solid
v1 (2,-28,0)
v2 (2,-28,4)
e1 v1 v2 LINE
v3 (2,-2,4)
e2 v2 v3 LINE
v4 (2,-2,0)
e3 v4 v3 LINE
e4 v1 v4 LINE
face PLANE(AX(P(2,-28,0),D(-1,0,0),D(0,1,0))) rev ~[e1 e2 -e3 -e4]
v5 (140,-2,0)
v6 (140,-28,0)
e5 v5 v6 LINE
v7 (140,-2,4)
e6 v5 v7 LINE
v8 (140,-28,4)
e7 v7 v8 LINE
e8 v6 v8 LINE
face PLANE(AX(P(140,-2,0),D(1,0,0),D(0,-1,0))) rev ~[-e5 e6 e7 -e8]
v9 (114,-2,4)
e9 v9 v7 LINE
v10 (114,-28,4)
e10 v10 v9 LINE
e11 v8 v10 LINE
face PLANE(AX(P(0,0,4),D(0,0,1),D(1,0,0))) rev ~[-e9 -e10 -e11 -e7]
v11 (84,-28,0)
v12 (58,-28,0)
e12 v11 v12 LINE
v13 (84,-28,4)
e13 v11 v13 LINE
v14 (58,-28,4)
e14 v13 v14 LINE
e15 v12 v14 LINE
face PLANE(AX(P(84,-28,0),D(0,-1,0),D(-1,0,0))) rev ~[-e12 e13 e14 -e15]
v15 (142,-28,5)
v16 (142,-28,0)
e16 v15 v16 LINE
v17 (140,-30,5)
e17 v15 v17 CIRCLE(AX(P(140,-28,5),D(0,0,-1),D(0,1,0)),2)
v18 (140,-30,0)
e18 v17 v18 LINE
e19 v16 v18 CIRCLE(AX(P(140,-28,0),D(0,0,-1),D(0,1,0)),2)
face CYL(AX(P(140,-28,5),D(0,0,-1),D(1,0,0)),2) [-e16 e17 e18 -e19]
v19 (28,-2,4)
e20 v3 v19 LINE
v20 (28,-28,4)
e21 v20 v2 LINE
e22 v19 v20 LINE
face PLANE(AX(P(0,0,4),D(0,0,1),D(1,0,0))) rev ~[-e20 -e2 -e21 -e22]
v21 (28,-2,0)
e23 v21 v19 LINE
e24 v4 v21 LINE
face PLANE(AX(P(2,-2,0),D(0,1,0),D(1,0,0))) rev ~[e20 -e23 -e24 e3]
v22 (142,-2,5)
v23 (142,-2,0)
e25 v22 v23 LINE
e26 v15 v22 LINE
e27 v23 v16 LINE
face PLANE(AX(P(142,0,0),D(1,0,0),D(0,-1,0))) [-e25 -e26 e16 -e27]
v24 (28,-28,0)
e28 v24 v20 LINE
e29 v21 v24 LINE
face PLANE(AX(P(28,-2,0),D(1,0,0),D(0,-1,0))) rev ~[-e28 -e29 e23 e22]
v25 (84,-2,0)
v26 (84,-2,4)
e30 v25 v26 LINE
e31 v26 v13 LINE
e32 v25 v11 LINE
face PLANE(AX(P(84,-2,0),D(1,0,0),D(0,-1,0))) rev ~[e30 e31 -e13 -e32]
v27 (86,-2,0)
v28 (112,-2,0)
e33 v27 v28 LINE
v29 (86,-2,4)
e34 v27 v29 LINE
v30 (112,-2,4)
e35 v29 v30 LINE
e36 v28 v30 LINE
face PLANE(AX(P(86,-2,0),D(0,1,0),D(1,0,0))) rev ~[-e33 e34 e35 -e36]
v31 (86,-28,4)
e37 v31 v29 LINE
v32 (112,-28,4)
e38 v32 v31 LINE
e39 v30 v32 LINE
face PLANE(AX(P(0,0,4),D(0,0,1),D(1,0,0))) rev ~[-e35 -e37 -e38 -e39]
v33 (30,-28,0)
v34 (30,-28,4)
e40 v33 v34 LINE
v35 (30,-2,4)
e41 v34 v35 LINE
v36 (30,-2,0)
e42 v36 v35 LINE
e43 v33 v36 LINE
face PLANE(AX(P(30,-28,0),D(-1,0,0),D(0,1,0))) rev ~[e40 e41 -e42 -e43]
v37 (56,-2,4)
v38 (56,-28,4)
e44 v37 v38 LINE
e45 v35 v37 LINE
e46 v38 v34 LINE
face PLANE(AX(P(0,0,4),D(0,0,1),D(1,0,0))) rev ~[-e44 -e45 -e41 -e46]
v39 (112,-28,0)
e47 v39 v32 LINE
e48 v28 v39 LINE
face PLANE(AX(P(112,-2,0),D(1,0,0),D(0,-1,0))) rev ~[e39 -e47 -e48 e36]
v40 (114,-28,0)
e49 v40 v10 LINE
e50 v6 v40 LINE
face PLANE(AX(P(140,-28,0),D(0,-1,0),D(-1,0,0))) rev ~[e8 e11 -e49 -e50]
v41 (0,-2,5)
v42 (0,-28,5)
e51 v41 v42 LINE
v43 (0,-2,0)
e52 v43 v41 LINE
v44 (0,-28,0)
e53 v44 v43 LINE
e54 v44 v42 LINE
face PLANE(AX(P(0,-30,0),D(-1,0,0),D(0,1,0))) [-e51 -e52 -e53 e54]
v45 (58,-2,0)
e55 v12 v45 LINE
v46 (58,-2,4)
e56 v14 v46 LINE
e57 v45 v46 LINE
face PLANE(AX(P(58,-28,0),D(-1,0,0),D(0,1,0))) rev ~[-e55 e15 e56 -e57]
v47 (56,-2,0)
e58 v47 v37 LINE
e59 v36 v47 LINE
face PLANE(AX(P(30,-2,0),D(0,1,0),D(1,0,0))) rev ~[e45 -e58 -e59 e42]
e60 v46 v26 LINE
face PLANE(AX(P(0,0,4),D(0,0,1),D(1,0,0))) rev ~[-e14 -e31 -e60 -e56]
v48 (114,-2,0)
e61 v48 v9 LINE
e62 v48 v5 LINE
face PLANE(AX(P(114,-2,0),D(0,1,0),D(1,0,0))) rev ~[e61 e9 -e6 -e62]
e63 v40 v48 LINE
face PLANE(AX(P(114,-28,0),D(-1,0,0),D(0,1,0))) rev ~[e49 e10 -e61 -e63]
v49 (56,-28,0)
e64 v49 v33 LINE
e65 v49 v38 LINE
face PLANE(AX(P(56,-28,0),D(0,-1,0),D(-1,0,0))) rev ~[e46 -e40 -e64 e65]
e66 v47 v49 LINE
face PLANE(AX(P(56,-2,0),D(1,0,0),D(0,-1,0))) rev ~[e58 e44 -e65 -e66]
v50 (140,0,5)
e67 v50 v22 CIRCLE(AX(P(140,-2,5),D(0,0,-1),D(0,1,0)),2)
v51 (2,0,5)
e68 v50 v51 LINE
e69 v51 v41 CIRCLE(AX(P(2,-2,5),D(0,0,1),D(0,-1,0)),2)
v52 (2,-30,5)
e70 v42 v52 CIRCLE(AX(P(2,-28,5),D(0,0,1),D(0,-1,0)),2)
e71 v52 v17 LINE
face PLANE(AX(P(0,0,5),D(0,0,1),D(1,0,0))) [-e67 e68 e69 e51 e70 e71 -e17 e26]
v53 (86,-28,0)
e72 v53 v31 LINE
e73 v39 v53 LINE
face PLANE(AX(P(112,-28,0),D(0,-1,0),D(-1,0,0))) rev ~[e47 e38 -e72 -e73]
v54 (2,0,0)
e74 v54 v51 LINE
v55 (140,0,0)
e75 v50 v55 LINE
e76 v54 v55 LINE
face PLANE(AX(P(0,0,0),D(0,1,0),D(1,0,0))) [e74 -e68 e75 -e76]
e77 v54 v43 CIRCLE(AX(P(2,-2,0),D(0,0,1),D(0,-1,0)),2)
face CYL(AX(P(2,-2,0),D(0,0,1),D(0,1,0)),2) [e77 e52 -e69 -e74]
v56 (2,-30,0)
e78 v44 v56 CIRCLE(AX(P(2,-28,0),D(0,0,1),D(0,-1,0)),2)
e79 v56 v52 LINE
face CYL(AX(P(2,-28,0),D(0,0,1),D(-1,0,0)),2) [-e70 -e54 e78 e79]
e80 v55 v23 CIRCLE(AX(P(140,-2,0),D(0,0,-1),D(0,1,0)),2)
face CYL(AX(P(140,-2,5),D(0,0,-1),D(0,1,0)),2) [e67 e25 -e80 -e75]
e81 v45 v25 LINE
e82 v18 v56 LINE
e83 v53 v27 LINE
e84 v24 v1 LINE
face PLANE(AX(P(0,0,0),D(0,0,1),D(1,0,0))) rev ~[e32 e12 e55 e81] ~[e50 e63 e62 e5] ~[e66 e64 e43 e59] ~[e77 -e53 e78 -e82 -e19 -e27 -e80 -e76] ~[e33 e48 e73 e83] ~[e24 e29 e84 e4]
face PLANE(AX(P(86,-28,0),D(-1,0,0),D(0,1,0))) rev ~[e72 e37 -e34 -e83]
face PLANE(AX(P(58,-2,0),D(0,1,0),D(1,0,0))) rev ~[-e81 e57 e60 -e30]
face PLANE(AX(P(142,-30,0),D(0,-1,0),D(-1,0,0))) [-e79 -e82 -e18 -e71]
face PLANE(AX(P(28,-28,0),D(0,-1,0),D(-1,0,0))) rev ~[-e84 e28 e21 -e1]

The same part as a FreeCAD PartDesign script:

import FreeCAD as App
import Part
import Sketcher


def edges_at(feature, points):
    """Names of the edges that pass closest to the given points."""
    edges = feature.Shape.Edges
    near = lambda p: min(range(len(edges)), key=lambda i: edges[i].distToShape(Part.Vertex(*p))[0])
    return sorted({f"Edge{near(p) + 1}" for p in points})

doc = App.newDocument("Part")
body = doc.addObject("PartDesign::Body", "Body")

# Sketch on XY plane
sketch1 = body.newObject("Sketcher::SketchObject", "Sketch")
sketch1.AttachmentSupport = (doc.getObject("XY_Plane"), [""])
sketch1.MapMode = "FlatFace"
sketch1.addGeometry(Part.LineSegment(App.Vector(142, 0, 0), App.Vector(0, 0, 0)), False)
sketch1.addGeometry(Part.LineSegment(App.Vector(0, 0, 0), App.Vector(0, -30, 0)), False)
sketch1.addGeometry(Part.LineSegment(App.Vector(0, -30, 0), App.Vector(142, -30, 0)), False)
sketch1.addGeometry(Part.LineSegment(App.Vector(142, -30, 0), App.Vector(142, 0, 0)), False)
sketch1.addGeometry(Part.LineSegment(App.Vector(2, -28, 0), App.Vector(2, -2, 0)), False)
sketch1.addGeometry(Part.LineSegment(App.Vector(2, -2, 0), App.Vector(28, -2, 0)), False)
sketch1.addGeometry(Part.LineSegment(App.Vector(28, -2, 0), App.Vector(28, -28, 0)), False)
sketch1.addGeometry(Part.LineSegment(App.Vector(28, -28, 0), App.Vector(2, -28, 0)), False)
sketch1.addGeometry(Part.LineSegment(App.Vector(30, -2, 0), App.Vector(56, -2, 0)), False)
sketch1.addGeometry(Part.LineSegment(App.Vector(56, -2, 0), App.Vector(56, -28, 0)), False)
sketch1.addGeometry(Part.LineSegment(App.Vector(56, -28, 0), App.Vector(30, -28, 0)), False)
sketch1.addGeometry(Part.LineSegment(App.Vector(30, -28, 0), App.Vector(30, -2, 0)), False)
sketch1.addGeometry(Part.LineSegment(App.Vector(58, -2, 0), App.Vector(84, -2, 0)), False)
sketch1.addGeometry(Part.LineSegment(App.Vector(84, -2, 0), App.Vector(84, -28, 0)), False)
sketch1.addGeometry(Part.LineSegment(App.Vector(84, -28, 0), App.Vector(58, -28, 0)), False)
sketch1.addGeometry(Part.LineSegment(App.Vector(58, -28, 0), App.Vector(58, -2, 0)), False)
sketch1.addGeometry(Part.LineSegment(App.Vector(86, -2, 0), App.Vector(112, -2, 0)), False)
sketch1.addGeometry(Part.LineSegment(App.Vector(112, -2, 0), App.Vector(112, -28, 0)), False)
sketch1.addGeometry(Part.LineSegment(App.Vector(112, -28, 0), App.Vector(86, -28, 0)), False)
sketch1.addGeometry(Part.LineSegment(App.Vector(86, -28, 0), App.Vector(86, -2, 0)), False)
sketch1.addGeometry(Part.LineSegment(App.Vector(114, -2, 0), App.Vector(140, -2, 0)), False)
sketch1.addGeometry(Part.LineSegment(App.Vector(140, -2, 0), App.Vector(140, -28, 0)), False)
sketch1.addGeometry(Part.LineSegment(App.Vector(140, -28, 0), App.Vector(114, -28, 0)), False)
sketch1.addGeometry(Part.LineSegment(App.Vector(114, -28, 0), App.Vector(114, -2, 0)), False)
sketch1.addConstraint(Sketcher.Constraint("Coincident", 0, 2, 1, 1))
sketch1.addConstraint(Sketcher.Constraint("Coincident", 1, 2, 2, 1))
sketch1.addConstraint(Sketcher.Constraint("Coincident", 2, 2, 3, 1))
sketch1.addConstraint(Sketcher.Constraint("Coincident", 3, 2, 0, 1))
sketch1.addConstraint(Sketcher.Constraint("Coincident", 4, 2, 5, 1))
sketch1.addConstraint(Sketcher.Constraint("Coincident", 5, 2, 6, 1))
sketch1.addConstraint(Sketcher.Constraint("Coincident", 6, 2, 7, 1))
sketch1.addConstraint(Sketcher.Constraint("Coincident", 7, 2, 4, 1))
sketch1.addConstraint(Sketcher.Constraint("Coincident", 8, 2, 9, 1))
sketch1.addConstraint(Sketcher.Constraint("Coincident", 9, 2, 10, 1))
sketch1.addConstraint(Sketcher.Constraint("Coincident", 10, 2, 11, 1))
sketch1.addConstraint(Sketcher.Constraint("Coincident", 11, 2, 8, 1))
sketch1.addConstraint(Sketcher.Constraint("Coincident", 12, 2, 13, 1))
sketch1.addConstraint(Sketcher.Constraint("Coincident", 13, 2, 14, 1))
sketch1.addConstraint(Sketcher.Constraint("Coincident", 14, 2, 15, 1))
sketch1.addConstraint(Sketcher.Constraint("Coincident", 15, 2, 12, 1))
sketch1.addConstraint(Sketcher.Constraint("Coincident", 16, 2, 17, 1))
sketch1.addConstraint(Sketcher.Constraint("Coincident", 17, 2, 18, 1))
sketch1.addConstraint(Sketcher.Constraint("Coincident", 18, 2, 19, 1))
sketch1.addConstraint(Sketcher.Constraint("Coincident", 19, 2, 16, 1))
sketch1.addConstraint(Sketcher.Constraint("Coincident", 20, 2, 21, 1))
sketch1.addConstraint(Sketcher.Constraint("Coincident", 21, 2, 22, 1))
sketch1.addConstraint(Sketcher.Constraint("Coincident", 22, 2, 23, 1))
sketch1.addConstraint(Sketcher.Constraint("Coincident", 23, 2, 20, 1))
sketch1.addConstraint(Sketcher.Constraint("Horizontal", 0))
sketch1.addConstraint(Sketcher.Constraint("Vertical", 1))
sketch1.addConstraint(Sketcher.Constraint("Horizontal", 2))
sketch1.addConstraint(Sketcher.Constraint("Vertical", 3))
sketch1.addConstraint(Sketcher.Constraint("Vertical", 4))
sketch1.addConstraint(Sketcher.Constraint("Horizontal", 5))
sketch1.addConstraint(Sketcher.Constraint("Vertical", 6))
sketch1.addConstraint(Sketcher.Constraint("Horizontal", 7))
sketch1.addConstraint(Sketcher.Constraint("Horizontal", 8))
sketch1.addConstraint(Sketcher.Constraint("Vertical", 9))
sketch1.addConstraint(Sketcher.Constraint("Horizontal", 10))
sketch1.addConstraint(Sketcher.Constraint("Vertical", 11))
sketch1.addConstraint(Sketcher.Constraint("Horizontal", 12))
sketch1.addConstraint(Sketcher.Constraint("Vertical", 13))
sketch1.addConstraint(Sketcher.Constraint("Horizontal", 14))
sketch1.addConstraint(Sketcher.Constraint("Vertical", 15))
sketch1.addConstraint(Sketcher.Constraint("Horizontal", 16))
sketch1.addConstraint(Sketcher.Constraint("Vertical", 17))
sketch1.addConstraint(Sketcher.Constraint("Horizontal", 18))
sketch1.addConstraint(Sketcher.Constraint("Vertical", 19))
sketch1.addConstraint(Sketcher.Constraint("Horizontal", 20))
sketch1.addConstraint(Sketcher.Constraint("Vertical", 21))
sketch1.addConstraint(Sketcher.Constraint("Horizontal", 22))
sketch1.addConstraint(Sketcher.Constraint("Vertical", 23))
sketch1.addConstraint(Sketcher.Constraint("Coincident", 0, 2, -1, 1))
sketch1.addConstraint(Sketcher.Constraint("Horizontal", 5, 2, 8, 2))
sketch1.addConstraint(Sketcher.Constraint("Horizontal", 7, 2, 9, 2))
sketch1.addConstraint(Sketcher.Constraint("Horizontal", 11, 2, 12, 2))
sketch1.addConstraint(Sketcher.Constraint("Horizontal", 10, 2, 13, 2))
sketch1.addConstraint(Sketcher.Constraint("Horizontal", 15, 2, 16, 2))
sketch1.addConstraint(Sketcher.Constraint("Horizontal", 14, 2, 17, 2))
sketch1.addConstraint(Sketcher.Constraint("Horizontal", 19, 2, 20, 2))
sketch1.addConstraint(Sketcher.Constraint("Horizontal", 18, 2, 21, 2))
sketch1.addConstraint(Sketcher.Constraint("Equal", 7, 8))
sketch1.addConstraint(Sketcher.Constraint("Equal", 10, 12))
sketch1.addConstraint(Sketcher.Constraint("Equal", 14, 16))
sketch1.addConstraint(Sketcher.Constraint("Equal", 18, 20))
sketch1.addConstraint(Sketcher.Constraint("Equal", 22, 4))
sketch1.addConstraint(Sketcher.Constraint("DistanceX", 0, 2, 0, 1, 142.0))
sketch1.addConstraint(Sketcher.Constraint("DistanceX", 5, 1, 5, 2, 26.0))
sketch1.addConstraint(Sketcher.Constraint("DistanceY", 1, 2, 1, 1, 30.0))
sketch1.addConstraint(Sketcher.Constraint("DistanceX", -1, 1, 4, 2, 2.0))
sketch1.addConstraint(Sketcher.Constraint("DistanceY", 4, 2, -1, 1, 2.0))
sketch1.addConstraint(Sketcher.Constraint("DistanceX", -1, 1, 10, 2, 30.0))
sketch1.addConstraint(Sketcher.Constraint("DistanceX", 8, 2, 12, 2, 28.0))
sketch1.addConstraint(Sketcher.Constraint("DistanceX", 12, 2, 16, 2, 28.0))
sketch1.addConstraint(Sketcher.Constraint("DistanceX", 20, 2, 3, 2, 2.0))
pad1 = body.newObject("PartDesign::Pad", "Pad")
pad1.Profile = sketch1
pad1.Length = 4

# Sketch on XY plane
sketch2 = body.newObject("Sketcher::SketchObject", "Sketch001")
sketch2.AttachmentSupport = (doc.getObject("XY_Plane"), [""])
sketch2.MapMode = "FlatFace"
sketch2.AttachmentOffset = App.Placement(App.Vector(0, 0, 4), App.Rotation())
sketch2.addGeometry(Part.LineSegment(App.Vector(0, 0, 0), App.Vector(0, -30, 0)), False)
sketch2.addGeometry(Part.LineSegment(App.Vector(0, -30, 0), App.Vector(142, -30, 0)), False)
sketch2.addGeometry(Part.LineSegment(App.Vector(142, -30, 0), App.Vector(142, 0, 0)), False)
sketch2.addGeometry(Part.LineSegment(App.Vector(142, 0, 0), App.Vector(0, 0, 0)), False)
sketch2.addConstraint(Sketcher.Constraint("Coincident", 0, 2, 1, 1))
sketch2.addConstraint(Sketcher.Constraint("Coincident", 1, 2, 2, 1))
sketch2.addConstraint(Sketcher.Constraint("Coincident", 2, 2, 3, 1))
sketch2.addConstraint(Sketcher.Constraint("Coincident", 3, 2, 0, 1))
sketch2.addConstraint(Sketcher.Constraint("Vertical", 0))
sketch2.addConstraint(Sketcher.Constraint("Horizontal", 1))
sketch2.addConstraint(Sketcher.Constraint("Vertical", 2))
sketch2.addConstraint(Sketcher.Constraint("Horizontal", 3))
sketch2.addConstraint(Sketcher.Constraint("Coincident", 3, 2, -1, 1))
sketch2.addConstraint(Sketcher.Constraint("DistanceX", 1, 1, 1, 2, 142.0))
sketch2.addConstraint(Sketcher.Constraint("DistanceY", 0, 2, 0, 1, 30.0))
pad2 = body.newObject("PartDesign::Pad", "Pad001")
pad2.Profile = sketch2
pad2.Length = 1
doc.recompute()

fillet = body.newObject("PartDesign::Fillet", "Fillet")
fillet.Base = (pad2, edges_at(pad2, [
    (142, 0, 2.5),
    (142, -30, 2.5),
    (0, 0, 2.5),
    (0, -30, 2.5),
]))
fillet.Radius = 2

doc.recompute()
